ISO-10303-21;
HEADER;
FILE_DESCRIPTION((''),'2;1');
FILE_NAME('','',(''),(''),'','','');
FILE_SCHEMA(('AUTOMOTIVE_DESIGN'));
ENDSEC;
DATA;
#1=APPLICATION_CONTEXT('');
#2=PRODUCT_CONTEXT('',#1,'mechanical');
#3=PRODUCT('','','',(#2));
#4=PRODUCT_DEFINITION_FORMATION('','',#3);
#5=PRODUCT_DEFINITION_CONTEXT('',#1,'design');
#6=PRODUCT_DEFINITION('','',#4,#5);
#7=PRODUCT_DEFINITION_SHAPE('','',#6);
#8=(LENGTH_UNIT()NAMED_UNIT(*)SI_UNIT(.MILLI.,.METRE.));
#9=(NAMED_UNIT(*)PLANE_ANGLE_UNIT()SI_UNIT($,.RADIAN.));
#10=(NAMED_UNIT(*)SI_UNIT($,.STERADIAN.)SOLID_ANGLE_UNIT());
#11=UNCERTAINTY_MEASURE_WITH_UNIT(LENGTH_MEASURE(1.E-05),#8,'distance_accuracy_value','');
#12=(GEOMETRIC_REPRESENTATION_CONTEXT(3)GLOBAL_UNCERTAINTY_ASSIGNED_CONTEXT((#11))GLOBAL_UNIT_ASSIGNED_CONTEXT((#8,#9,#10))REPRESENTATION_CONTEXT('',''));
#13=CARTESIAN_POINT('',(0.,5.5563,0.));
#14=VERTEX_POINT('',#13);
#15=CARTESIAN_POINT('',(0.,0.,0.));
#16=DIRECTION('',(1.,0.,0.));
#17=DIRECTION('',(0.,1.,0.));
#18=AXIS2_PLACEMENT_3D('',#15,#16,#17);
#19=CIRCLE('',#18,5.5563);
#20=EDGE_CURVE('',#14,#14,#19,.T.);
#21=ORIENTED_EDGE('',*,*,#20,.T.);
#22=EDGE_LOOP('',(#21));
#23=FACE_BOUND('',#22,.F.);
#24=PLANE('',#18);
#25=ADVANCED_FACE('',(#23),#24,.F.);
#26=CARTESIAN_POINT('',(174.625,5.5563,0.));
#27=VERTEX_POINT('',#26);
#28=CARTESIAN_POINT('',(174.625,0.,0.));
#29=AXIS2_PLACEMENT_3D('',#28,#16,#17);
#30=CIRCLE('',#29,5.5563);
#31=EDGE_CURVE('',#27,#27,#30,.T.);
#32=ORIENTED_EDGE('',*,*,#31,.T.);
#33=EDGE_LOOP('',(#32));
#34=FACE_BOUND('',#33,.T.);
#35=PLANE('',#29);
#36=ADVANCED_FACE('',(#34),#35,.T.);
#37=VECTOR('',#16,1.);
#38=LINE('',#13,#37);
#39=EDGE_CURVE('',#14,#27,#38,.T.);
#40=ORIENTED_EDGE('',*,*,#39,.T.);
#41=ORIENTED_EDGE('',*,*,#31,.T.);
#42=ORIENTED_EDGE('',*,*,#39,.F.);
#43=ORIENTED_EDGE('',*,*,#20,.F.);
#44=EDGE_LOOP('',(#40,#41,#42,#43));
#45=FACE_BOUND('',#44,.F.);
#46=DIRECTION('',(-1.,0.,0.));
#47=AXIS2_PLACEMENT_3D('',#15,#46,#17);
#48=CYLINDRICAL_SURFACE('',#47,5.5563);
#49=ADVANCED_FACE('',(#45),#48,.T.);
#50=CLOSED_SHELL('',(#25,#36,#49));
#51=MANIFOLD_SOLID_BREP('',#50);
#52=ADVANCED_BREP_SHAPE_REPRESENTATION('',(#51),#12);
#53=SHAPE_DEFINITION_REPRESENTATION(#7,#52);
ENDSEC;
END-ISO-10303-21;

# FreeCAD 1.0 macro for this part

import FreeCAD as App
import Part
import Sketcher
Q = App.Units.Quantity

doc = App.newDocument("Part")
body = doc.addObject("PartDesign::Body", "Body")

sketch1 = body.newObject("Sketcher::SketchObject", "Sketch")
sketch1.AttachmentSupport = (doc.getObject("YZ_Plane"), [""])
sketch1.MapMode = "FlatFace"
sketch1.addGeometry(Part.Circle(App.Vector(0, 0, 0), App.Vector(0, 0, 1), 6), False)
sketch1.addConstraint([
    Sketcher.Constraint("Coincident", 0, 3, -1, 1),
    Sketcher.Constraint("Diameter", 0, Q("0.4375 in")),
])
pad1 = body.newObject("PartDesign::Pad", "Pad")
pad1.Profile = sketch1
pad1.Length = Q("6.875 in")

doc.recompute()
